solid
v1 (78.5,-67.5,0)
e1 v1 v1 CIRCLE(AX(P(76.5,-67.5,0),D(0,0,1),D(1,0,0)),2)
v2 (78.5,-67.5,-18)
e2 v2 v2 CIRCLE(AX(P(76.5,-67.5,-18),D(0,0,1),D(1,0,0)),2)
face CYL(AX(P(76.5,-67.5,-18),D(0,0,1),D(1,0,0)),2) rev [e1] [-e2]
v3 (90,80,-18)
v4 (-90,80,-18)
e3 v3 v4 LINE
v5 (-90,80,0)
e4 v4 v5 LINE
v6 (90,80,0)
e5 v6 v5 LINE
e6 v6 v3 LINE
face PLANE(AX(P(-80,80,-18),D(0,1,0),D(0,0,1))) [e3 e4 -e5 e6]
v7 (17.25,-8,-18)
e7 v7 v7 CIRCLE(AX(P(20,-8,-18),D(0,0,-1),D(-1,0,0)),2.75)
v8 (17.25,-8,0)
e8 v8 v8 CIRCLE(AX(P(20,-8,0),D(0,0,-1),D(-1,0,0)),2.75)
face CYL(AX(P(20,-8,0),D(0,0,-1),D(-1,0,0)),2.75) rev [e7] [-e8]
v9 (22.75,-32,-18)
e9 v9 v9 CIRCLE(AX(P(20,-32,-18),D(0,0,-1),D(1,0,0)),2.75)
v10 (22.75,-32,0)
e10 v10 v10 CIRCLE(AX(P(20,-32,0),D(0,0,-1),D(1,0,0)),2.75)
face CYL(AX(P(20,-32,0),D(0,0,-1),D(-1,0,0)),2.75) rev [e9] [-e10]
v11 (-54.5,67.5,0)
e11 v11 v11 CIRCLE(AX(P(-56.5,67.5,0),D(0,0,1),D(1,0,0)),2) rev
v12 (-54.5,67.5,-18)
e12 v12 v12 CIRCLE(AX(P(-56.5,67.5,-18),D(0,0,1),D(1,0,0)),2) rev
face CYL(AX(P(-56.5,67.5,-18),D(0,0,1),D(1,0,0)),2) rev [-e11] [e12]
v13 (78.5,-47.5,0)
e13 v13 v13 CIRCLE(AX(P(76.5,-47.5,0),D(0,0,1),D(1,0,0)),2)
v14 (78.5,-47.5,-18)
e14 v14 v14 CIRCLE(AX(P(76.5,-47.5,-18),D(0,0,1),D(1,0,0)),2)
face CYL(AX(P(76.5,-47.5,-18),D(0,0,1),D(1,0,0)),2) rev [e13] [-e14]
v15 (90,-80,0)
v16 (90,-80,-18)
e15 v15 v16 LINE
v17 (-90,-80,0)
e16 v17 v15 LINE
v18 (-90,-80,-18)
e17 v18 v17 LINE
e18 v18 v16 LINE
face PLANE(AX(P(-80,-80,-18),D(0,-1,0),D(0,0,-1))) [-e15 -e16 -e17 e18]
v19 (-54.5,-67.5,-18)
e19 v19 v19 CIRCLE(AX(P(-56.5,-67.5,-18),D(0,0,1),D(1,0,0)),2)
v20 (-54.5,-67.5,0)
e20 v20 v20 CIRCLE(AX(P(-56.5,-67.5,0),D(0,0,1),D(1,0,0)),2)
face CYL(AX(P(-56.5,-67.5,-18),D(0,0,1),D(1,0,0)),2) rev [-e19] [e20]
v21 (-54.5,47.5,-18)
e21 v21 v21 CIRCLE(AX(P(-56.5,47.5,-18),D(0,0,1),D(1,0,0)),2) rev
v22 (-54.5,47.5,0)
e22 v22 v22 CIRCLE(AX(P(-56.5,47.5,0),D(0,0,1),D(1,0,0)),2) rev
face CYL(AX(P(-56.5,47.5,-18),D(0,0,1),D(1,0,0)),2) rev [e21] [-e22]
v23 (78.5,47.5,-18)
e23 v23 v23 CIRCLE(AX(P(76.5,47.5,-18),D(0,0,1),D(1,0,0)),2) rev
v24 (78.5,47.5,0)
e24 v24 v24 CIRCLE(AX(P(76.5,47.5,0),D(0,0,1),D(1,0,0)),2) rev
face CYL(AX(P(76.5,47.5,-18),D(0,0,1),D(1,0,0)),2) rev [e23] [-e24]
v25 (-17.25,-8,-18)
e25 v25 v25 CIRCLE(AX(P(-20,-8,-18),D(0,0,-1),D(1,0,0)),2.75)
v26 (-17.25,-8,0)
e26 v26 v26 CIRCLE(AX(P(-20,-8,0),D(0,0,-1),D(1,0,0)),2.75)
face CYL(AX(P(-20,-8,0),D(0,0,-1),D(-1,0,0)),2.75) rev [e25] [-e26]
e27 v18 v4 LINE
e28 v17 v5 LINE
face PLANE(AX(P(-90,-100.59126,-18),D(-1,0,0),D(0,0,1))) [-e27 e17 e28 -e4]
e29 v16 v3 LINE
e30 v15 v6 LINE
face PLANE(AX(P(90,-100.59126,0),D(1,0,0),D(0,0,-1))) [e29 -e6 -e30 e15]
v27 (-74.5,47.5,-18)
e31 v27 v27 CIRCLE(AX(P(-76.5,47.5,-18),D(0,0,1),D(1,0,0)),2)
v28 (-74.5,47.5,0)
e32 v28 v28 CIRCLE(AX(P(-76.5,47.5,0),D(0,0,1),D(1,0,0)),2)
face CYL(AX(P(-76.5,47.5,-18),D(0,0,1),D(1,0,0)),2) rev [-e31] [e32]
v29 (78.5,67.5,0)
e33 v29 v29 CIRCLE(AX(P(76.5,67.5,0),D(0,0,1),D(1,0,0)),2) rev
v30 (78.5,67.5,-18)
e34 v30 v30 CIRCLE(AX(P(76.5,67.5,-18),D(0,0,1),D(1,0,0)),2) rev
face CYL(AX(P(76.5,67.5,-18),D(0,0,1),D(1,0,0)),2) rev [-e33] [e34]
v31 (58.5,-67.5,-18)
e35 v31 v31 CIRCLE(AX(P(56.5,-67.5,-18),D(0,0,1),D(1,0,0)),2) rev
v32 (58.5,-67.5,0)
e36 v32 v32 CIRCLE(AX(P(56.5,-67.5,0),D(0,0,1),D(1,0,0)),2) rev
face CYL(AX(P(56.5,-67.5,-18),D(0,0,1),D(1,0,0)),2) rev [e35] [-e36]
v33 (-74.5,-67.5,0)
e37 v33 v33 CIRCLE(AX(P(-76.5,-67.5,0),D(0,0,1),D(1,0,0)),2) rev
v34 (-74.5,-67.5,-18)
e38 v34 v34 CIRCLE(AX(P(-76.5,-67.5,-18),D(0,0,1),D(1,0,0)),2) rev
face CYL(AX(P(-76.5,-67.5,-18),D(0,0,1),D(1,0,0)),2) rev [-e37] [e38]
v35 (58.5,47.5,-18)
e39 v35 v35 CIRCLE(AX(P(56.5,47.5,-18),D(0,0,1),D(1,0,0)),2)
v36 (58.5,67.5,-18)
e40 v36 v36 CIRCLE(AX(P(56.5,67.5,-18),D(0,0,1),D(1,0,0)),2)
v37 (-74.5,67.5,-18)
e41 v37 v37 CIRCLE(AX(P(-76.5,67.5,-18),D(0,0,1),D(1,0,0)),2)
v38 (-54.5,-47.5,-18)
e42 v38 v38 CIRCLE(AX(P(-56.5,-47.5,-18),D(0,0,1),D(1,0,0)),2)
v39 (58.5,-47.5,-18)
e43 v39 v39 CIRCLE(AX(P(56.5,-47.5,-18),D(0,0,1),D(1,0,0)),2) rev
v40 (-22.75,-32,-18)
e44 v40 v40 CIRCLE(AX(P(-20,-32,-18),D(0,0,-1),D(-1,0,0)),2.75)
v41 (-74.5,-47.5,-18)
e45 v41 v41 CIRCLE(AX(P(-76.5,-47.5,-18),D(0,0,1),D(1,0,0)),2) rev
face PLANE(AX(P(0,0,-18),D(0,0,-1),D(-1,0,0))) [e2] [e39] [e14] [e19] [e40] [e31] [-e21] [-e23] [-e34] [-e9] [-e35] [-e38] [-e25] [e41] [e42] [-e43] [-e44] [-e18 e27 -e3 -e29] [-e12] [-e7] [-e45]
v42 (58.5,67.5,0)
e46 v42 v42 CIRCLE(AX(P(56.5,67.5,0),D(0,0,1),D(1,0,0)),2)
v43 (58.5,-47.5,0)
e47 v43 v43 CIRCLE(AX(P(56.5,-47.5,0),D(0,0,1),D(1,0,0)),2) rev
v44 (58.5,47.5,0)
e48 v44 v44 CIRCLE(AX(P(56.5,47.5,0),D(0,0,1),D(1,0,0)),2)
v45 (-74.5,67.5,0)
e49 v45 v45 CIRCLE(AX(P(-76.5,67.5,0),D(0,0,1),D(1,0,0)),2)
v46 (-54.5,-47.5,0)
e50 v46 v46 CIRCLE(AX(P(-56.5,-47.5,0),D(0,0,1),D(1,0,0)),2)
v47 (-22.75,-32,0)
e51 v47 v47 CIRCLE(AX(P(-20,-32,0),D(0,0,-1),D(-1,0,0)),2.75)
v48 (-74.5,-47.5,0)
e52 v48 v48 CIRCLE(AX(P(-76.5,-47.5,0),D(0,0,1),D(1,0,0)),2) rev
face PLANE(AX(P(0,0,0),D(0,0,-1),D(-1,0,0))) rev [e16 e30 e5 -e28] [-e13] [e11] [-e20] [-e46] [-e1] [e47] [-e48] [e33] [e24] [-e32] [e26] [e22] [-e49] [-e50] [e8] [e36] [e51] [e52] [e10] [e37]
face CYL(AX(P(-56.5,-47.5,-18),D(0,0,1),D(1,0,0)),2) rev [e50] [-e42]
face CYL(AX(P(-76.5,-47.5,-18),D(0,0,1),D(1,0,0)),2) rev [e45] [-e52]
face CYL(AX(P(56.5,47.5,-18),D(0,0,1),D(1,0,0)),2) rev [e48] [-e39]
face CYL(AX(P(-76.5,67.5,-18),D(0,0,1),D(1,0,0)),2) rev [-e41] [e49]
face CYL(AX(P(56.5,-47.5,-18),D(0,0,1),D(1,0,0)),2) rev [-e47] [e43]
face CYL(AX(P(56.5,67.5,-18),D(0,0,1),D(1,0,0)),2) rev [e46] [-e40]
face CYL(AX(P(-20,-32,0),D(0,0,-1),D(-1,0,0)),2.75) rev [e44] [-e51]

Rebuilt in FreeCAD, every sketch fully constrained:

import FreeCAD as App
import Part
import Sketcher
Q = App.Units.Quantity

doc = App.newDocument("Part")
body = doc.addObject("PartDesign::Body", "Body")

# Sketch on XY plane
sketch1 = body.newObject("Sketcher::SketchObject", "Sketch")
sketch1.AttachmentSupport = (doc.getObject("XY_Plane"), [""])
sketch1.MapMode = "FlatFace"
sketch1.addGeometry(Part.LineSegment(App.Vector(-80, 80, 0), App.Vector(-80, -80, 0)), False)
sketch1.addGeometry(Part.LineSegment(App.Vector(-80, -80, 0), App.Vector(80, -80, 0)), False)
sketch1.addGeometry(Part.LineSegment(App.Vector(80, -80, 0), App.Vector(80, 80, 0)), False)
sketch1.addGeometry(Part.LineSegment(App.Vector(80, 80, 0), App.Vector(-80, 80, 0)), False)
sketch1.addConstraint(Sketcher.Constraint("Coincident", 0, 2, 1, 1))
sketch1.addConstraint(Sketcher.Constraint("Coincident", 1, 2, 2, 1))
sketch1.addConstraint(Sketcher.Constraint("Coincident", 2, 2, 3, 1))
sketch1.addConstraint(Sketcher.Constraint("Coincident", 3, 2, 0, 1))
sketch1.addConstraint(Sketcher.Constraint("Vertical", 0))
sketch1.addConstraint(Sketcher.Constraint("Horizontal", 1))
sketch1.addConstraint(Sketcher.Constraint("Vertical", 2))
sketch1.addConstraint(Sketcher.Constraint("Horizontal", 3))
sketch1.addConstraint(Sketcher.Constraint("Symmetric", 0, 2, 2, 2, -1, 1))
sketch1.addConstraint(Sketcher.Constraint("Equal", 3, 0))
sketch1.addConstraint(Sketcher.Constraint("DistanceX", 1, 1, 1, 2, Q("160 mm")))
pad1 = body.newObject("PartDesign::Pad", "Pad")
pad1.Profile = sketch1
pad1.Length = 18
pad1.Reversed = True

# Sketch on XY plane
sketch2 = body.newObject("Sketcher::SketchObject", "Sketch001")
sketch2.AttachmentSupport = (doc.getObject("XY_Plane"), [""])
sketch2.MapMode = "FlatFace"
sketch2.addGeometry(Part.Circle(App.Vector(-76.5, 67.5, 0), App.Vector(0, 0, 1), 2), False)
sketch2.addGeometry(Part.Circle(App.Vector(-56.5, 67.5, 0), App.Vector(0, 0, 1), 2), False)
sketch2.addGeometry(Part.Circle(App.Vector(-56.5, 47.5, 0), App.Vector(0, 0, 1), 2), False)
sketch2.addGeometry(Part.Circle(App.Vector(-76.5, 47.5, 0), App.Vector(0, 0, 1), 2), False)
sketch2.addGeometry(Part.Circle(App.Vector(76.5, 67.5, 0), App.Vector(0, 0, 1), 2), False)
sketch2.addGeometry(Part.Circle(App.Vector(76.5, 47.5, 0), App.Vector(0, 0, 1), 2), False)
sketch2.addGeometry(Part.Circle(App.Vector(76.5, -47.5, 0), App.Vector(0, 0, 1), 2), False)
sketch2.addGeometry(Part.Circle(App.Vector(76.5, -67.5, 0), App.Vector(0, 0, 1), 2), False)
sketch2.addGeometry(Part.Circle(App.Vector(56.5, -47.5, 0), App.Vector(0, 0, 1), 2), False)
sketch2.addGeometry(Part.Circle(App.Vector(56.5, -67.5, 0), App.Vector(0, 0, 1), 2), False)
sketch2.addGeometry(Part.Circle(App.Vector(-56.5, -47.5, 0), App.Vector(0, 0, 1), 2), False)
sketch2.addGeometry(Part.Circle(App.Vector(-56.5, -67.5, 0), App.Vector(0, 0, 1), 2), False)
sketch2.addGeometry(Part.Circle(App.Vector(-76.5, -47.5, 0), App.Vector(0, 0, 1), 2), False)
sketch2.addGeometry(Part.Circle(App.Vector(-76.5, -67.5, 0), App.Vector(0, 0, 1), 2), False)
sketch2.addGeometry(Part.Circle(App.Vector(56.5, 67.5, 0), App.Vector(0, 0, 1), 2), False)
sketch2.addGeometry(Part.Circle(App.Vector(56.5, 47.5, 0), App.Vector(0, 0, 1), 2), False)
sketch2.addConstraint(Sketcher.Constraint("Equal", 0, 1))
sketch2.addConstraint(Sketcher.Constraint("Equal", 1, 2))
sketch2.addConstraint(Sketcher.Constraint("Equal", 2, 3))
sketch2.addConstraint(Sketcher.Constraint("Equal", 3, 4))
sketch2.addConstraint(Sketcher.Constraint("Equal", 4, 5))
sketch2.addConstraint(Sketcher.Constraint("Equal", 5, 6))
sketch2.addConstraint(Sketcher.Constraint("Equal", 6, 7))
sketch2.addConstraint(Sketcher.Constraint("Equal", 7, 8))
sketch2.addConstraint(Sketcher.Constraint("Equal", 8, 9))
sketch2.addConstraint(Sketcher.Constraint("Equal", 9, 10))
sketch2.addConstraint(Sketcher.Constraint("Equal", 10, 11))
sketch2.addConstraint(Sketcher.Constraint("Equal", 11, 12))
sketch2.addConstraint(Sketcher.Constraint("Equal", 12, 13))
sketch2.addConstraint(Sketcher.Constraint("Equal", 13, 14))
sketch2.addConstraint(Sketcher.Constraint("Equal", 14, 15))
sketch2.addConstraint(Sketcher.Constraint("Symmetric", 3, 3, 6, 3, -1, 1))
sketch2.addConstraint(Sketcher.Constraint("Symmetric", 0, 3, 7, 3, -1, 1))
sketch2.addConstraint(Sketcher.Constraint("Symmetric", 2, 3, 8, 3, -1, 1))
sketch2.addConstraint(Sketcher.Constraint("Symmetric", 1, 3, 9, 3, -1, 1))
sketch2.addConstraint(Sketcher.Constraint("Symmetric", 5, 3, 12, 3, -1, 1))
sketch2.addConstraint(Sketcher.Constraint("Symmetric", 4, 3, 13, 3, -1, 1))
sketch2.addConstraint(Sketcher.Constraint("Symmetric", 11, 3, 14, 3, -1, 1))
sketch2.addConstraint(Sketcher.Constraint("Symmetric", 10, 3, 15, 3, -1, 1))
sketch2.addConstraint(Sketcher.Constraint("Symmetric", 0, 3, 4, 3, -2))
sketch2.addConstraint(Sketcher.Constraint("Symmetric", 3, 3, 5, 3, -2))
sketch2.addConstraint(Sketcher.Constraint("Symmetric", 8, 3, 10, 3, -2))
sketch2.addConstraint(Sketcher.Constraint("Symmetric", 9, 3, 11, 3, -2))
sketch2.addConstraint(Sketcher.Constraint("Horizontal", 0, 3, 1, 3))
sketch2.addConstraint(Sketcher.Constraint("Horizontal", 2, 3, 3, 3))
sketch2.addConstraint(Sketcher.Constraint("Vertical", 1, 3, 2, 3))
sketch2.addConstraint(Sketcher.Constraint("Vertical", 0, 3, 3, 3))
sketch2.addConstraint(Sketcher.Constraint("Diameter", 0, Q("4 mm")))
sketch2.addConstraint(Sketcher.Constraint("DistanceX", 0, 3, 1, 3, Q("20 mm")))
sketch2.addConstraint(Sketcher.Constraint("DistanceY", 2, 3, 1, 3, Q("20 mm")))
sketch2.addConstraint(Sketcher.Constraint("DistanceX", 1, 3, 4, 3, Q("133 mm")))
sketch2.addConstraint(Sketcher.Constraint("DistanceY", 6, 3, 5, 3, Q("95 mm")))
pocket1 = body.newObject("PartDesign::Pocket", "Pocket")
pocket1.Profile = sketch2
pocket1.Type = "ThroughAll"

# Sketch on XZ plane
sketch3 = body.newObject("Sketcher::SketchObject", "Sketch002")
sketch3.AttachmentSupport = (doc.getObject("XZ_Plane"), [""])
sketch3.MapMode = "FlatFace"
sketch3.AttachmentOffset = App.Placement(App.Vector(0, 0, -80), App.Rotation())
sketch3.addGeometry(Part.LineSegment(App.Vector(80, -18, 0), App.Vector(80, 0, 0)), False)
sketch3.addGeometry(Part.LineSegment(App.Vector(80, 0, 0), App.Vector(90, 0, 0)), False)
sketch3.addGeometry(Part.LineSegment(App.Vector(90, 0, 0), App.Vector(90, -18, 0)), False)
sketch3.addGeometry(Part.LineSegment(App.Vector(90, -18, 0), App.Vector(80, -18, 0)), False)
sketch3.addGeometry(Part.LineSegment(App.Vector(-90, -18, 0), App.Vector(-90, 0, 0)), False)
sketch3.addGeometry(Part.LineSegment(App.Vector(-90, 0, 0), App.Vector(-80, 0, 0)), False)
sketch3.addGeometry(Part.LineSegment(App.Vector(-80, 0, 0), App.Vector(-80, -18, 0)), False)
sketch3.addGeometry(Part.LineSegment(App.Vector(-80, -18, 0), App.Vector(-90, -18, 0)), False)
sketch3.addConstraint(Sketcher.Constraint("Coincident", 0, 2, 1, 1))
sketch3.addConstraint(Sketcher.Constraint("Coincident", 1, 2, 2, 1))
sketch3.addConstraint(Sketcher.Constraint("Coincident", 2, 2, 3, 1))
sketch3.addConstraint(Sketcher.Constraint("Coincident", 3, 2, 0, 1))
sketch3.addConstraint(Sketcher.Constraint("Coincident", 4, 2, 5, 1))
sketch3.addConstraint(Sketcher.Constraint("Coincident", 5, 2, 6, 1))
sketch3.addConstraint(Sketcher.Constraint("Coincident", 6, 2, 7, 1))
sketch3.addConstraint(Sketcher.Constraint("Coincident", 7, 2, 4, 1))
sketch3.addConstraint(Sketcher.Constraint("Vertical", 0))
sketch3.addConstraint(Sketcher.Constraint("Horizontal", 1))
sketch3.addConstraint(Sketcher.Constraint("Vertical", 2))
sketch3.addConstraint(Sketcher.Constraint("Horizontal", 3))
sketch3.addConstraint(Sketcher.Constraint("Vertical", 4))
sketch3.addConstraint(Sketcher.Constraint("Horizontal", 5))
sketch3.addConstraint(Sketcher.Constraint("Vertical", 6))
sketch3.addConstraint(Sketcher.Constraint("Horizontal", 7))
sketch3.addConstraint(Sketcher.Constraint("Symmetric", 1, 2, 4, 2, -1, 1))
sketch3.addConstraint(Sketcher.Constraint("Symmetric", 0, 2, 5, 2, -2))
sketch3.addConstraint(Sketcher.Constraint("Horizontal", 3, 2, 6, 2))
sketch3.addConstraint(Sketcher.Constraint("DistanceX", 1, 1, 1, 2, Q("10 mm")))
sketch3.addConstraint(Sketcher.Constraint("DistanceY", 0, 1, 0, 2, Q("18 mm")))
sketch3.addConstraint(Sketcher.Constraint("DistanceX", -1, 1, 0, 2, Q("80 mm")))
pad2 = body.newObject("PartDesign::Pad", "Pad001")
pad2.Profile = sketch3
pad2.Length = 160

# Sketch on XY plane
sketch4 = body.newObject("Sketcher::SketchObject", "Sketch003")
sketch4.AttachmentSupport = (doc.getObject("XY_Plane"), [""])
sketch4.MapMode = "FlatFace"
sketch4.AttachmentOffset = App.Placement(App.Vector(0, 0, -18), App.Rotation())
sketch4.addGeometry(Part.Circle(App.Vector(20, -8, 0), App.Vector(0, 0, 1), 2.8), False)
sketch4.addGeometry(Part.Circle(App.Vector(20, -32, 0), App.Vector(0, 0, 1), 2.8), False)
sketch4.addGeometry(Part.Circle(App.Vector(-20, -32, 0), App.Vector(0, 0, 1), 2.8), False)
sketch4.addGeometry(Part.Circle(App.Vector(-20, -8, 0), App.Vector(0, 0, 1), 2.8), False)
sketch4.addConstraint(Sketcher.Constraint("Equal", 0, 1))
sketch4.addConstraint(Sketcher.Constraint("Equal", 1, 2))
sketch4.addConstraint(Sketcher.Constraint("Equal", 2, 3))
sketch4.addConstraint(Sketcher.Constraint("Symmetric", 1, 3, 2, 3, -2))
sketch4.addConstraint(Sketcher.Constraint("Symmetric", 0, 3, 3, 3, -2))
sketch4.addConstraint(Sketcher.Constraint("Vertical", 0, 3, 1, 3))
sketch4.addConstraint(Sketcher.Constraint("Diameter", 0, Q("5.5 mm")))
sketch4.addConstraint(Sketcher.Constraint("DistanceX", -1, 1, 0, 3, Q("20 mm")))
sketch4.addConstraint(Sketcher.Constraint("DistanceY", 0, 3, -1, 1, Q("8 mm")))
sketch4.addConstraint(Sketcher.Constraint("DistanceY", 1, 3, -1, 1, Q("32 mm")))
pocket2 = body.newObject("PartDesign::Pocket", "Pocket001")
pocket2.Profile = sketch4
pocket2.Type = "ThroughAll"
pocket2.Reversed = True

doc.recompute()
